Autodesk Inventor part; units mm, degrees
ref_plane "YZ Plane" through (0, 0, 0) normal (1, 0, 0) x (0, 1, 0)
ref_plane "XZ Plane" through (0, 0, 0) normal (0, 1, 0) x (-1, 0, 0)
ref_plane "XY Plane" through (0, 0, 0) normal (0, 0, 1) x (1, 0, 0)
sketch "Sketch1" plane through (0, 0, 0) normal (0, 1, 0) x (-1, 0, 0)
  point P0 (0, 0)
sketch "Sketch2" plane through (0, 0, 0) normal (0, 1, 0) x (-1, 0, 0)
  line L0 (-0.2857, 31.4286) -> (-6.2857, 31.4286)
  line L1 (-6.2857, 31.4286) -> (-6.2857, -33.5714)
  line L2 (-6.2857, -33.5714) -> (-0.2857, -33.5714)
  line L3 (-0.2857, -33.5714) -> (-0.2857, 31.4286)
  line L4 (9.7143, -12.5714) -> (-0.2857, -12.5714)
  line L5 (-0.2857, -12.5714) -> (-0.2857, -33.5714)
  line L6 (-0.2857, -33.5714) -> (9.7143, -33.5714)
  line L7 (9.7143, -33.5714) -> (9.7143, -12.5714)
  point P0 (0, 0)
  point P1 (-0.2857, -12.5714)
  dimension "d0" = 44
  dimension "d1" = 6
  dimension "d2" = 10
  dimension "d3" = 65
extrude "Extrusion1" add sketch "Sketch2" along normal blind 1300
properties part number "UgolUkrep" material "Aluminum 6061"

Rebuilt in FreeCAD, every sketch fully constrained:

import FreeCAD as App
import Part
import Sketcher

V = App.Vector

doc = App.newDocument("Part")
params = doc.addObject("Spreadsheet::Sheet", "Params")
for row, (alias, value) in enumerate([
    ("sketch1_width", "6 mm"),
    ("sketch1_width2", "10 mm"),
    ("sketch1_height", "44 mm"),
    ("sketch1_height2", "65 mm"),
    ("pad1_length", "1300 mm"),
], start=1):
    params.set(f"A{row}", alias)
    params.set(f"B{row}", "=" + value)
    params.setAlias(f"B{row}", alias)

body = doc.addObject("PartDesign::Body", "Body")

sketch1 = doc.addObject("Sketcher::SketchObject", "Sketch")
body.addObject(sketch1)
sketch1.AttachmentSupport = (doc.XZ_Plane, [""])
sketch1.MapMode = "FlatFace"
sketch1.addGeometry([
    Part.LineSegment(V(0, -13, 0), V(0, 31, 0)),
    Part.LineSegment(V(0, 31, 0), V(6, 31, 0)),
    Part.LineSegment(V(6, 31, 0), V(6, -34, 0)),
    Part.LineSegment(V(6, -34, 0), V(-10, -34, 0)),
    Part.LineSegment(V(-10, -34, 0), V(-10, -13, 0)),
    Part.LineSegment(V(-10, -13, 0), V(0, -13, 0)),
], False)
sketch1.addConstraint([
    Sketcher.Constraint("Coincident", 0, 2, 1, 1),
    Sketcher.Constraint("Coincident", 1, 2, 2, 1),
    Sketcher.Constraint("Coincident", 2, 2, 3, 1),
    Sketcher.Constraint("Coincident", 3, 2, 4, 1),
    Sketcher.Constraint("Coincident", 4, 2, 5, 1),
    Sketcher.Constraint("Coincident", 5, 2, 0, 1),
    Sketcher.Constraint("Vertical", 0),
    Sketcher.Constraint("Horizontal", 1),
    Sketcher.Constraint("Vertical", 2),
    Sketcher.Constraint("Horizontal", 3),
    Sketcher.Constraint("Vertical", 4),
    Sketcher.Constraint("Horizontal", 5),
    Sketcher.Constraint("DistanceX", 1, 1, 1, 2, 6.0),
    Sketcher.Constraint("DistanceX", 5, 1, 5, 2, 10.0),
    Sketcher.Constraint("DistanceY", 0, 1, 0, 2, 44.0),
    Sketcher.Constraint("DistanceY", 2, 2, 2, 1, 65.0),
    Sketcher.Constraint("DistanceX", -1, 1, 0, 2, 0.2857),
    Sketcher.Constraint("DistanceY", -1, 1, 0, 2, 31.4286),
])
sketch1.setExpression("Constraints[12]", "Params.sketch1_width")
sketch1.setExpression("Constraints[13]", "Params.sketch1_width2")
sketch1.setExpression("Constraints[14]", "Params.sketch1_height")
sketch1.setExpression("Constraints[15]", "Params.sketch1_height2")
pad1 = doc.addObject("PartDesign::Pad", "Pad")
body.addObject(pad1)
pad1.Profile = sketch1
pad1.setExpression("Length", "Params.pad1_length")
pad1.Reversed = True

doc.recompute()
